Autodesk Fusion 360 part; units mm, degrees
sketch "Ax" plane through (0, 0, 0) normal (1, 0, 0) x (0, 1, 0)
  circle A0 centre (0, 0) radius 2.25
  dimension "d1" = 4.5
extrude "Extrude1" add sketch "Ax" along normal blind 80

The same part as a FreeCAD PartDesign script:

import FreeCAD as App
import Part
import Sketcher

doc = App.newDocument("Part")
params = doc.addObject("Spreadsheet::Sheet", "Params")
for row, (alias, value) in enumerate([
    ("sketch1_diameter", "4.5 mm"),
    ("pad1_length", "80 mm"),
], start=1):
    params.set(f"A{row}", alias)
    params.set(f"B{row}", "=" + value)
    params.setAlias(f"B{row}", alias)

body = doc.addObject("PartDesign::Body", "Body")

# Sketch on YZ plane
sketch1 = body.newObject("Sketcher::SketchObject", "Sketch")
sketch1.AttachmentSupport = (doc.getObject("YZ_Plane"), [""])
sketch1.MapMode = "FlatFace"
sketch1.addGeometry(Part.Circle(App.Vector(0, 0, 0), App.Vector(0, 0, 1), 2.2), False)
sketch1.addConstraint([
    Sketcher.Constraint("Coincident", 0, 3, -1, 1),
    Sketcher.Constraint("Diameter", 0, 4.5),
])
sketch1.setExpression("Constraints[1]", "Params.sketch1_diameter")
pad1 = body.newObject("PartDesign::Pad", "Pad")
pad1.Profile = sketch1
pad1.setExpression("Length", "Params.pad1_length")

doc.recompute()
